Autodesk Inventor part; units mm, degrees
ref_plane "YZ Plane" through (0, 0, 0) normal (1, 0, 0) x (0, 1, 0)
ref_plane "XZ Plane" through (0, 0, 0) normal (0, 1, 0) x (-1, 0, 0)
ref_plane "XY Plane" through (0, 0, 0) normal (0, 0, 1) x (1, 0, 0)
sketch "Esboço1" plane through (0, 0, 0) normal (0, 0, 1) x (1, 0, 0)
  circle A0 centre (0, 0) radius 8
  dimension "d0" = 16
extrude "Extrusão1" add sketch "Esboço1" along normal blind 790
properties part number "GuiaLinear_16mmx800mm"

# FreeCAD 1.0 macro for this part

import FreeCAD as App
import Part
import Sketcher
from FreeCAD import Vector
Q = App.Units.Quantity

doc = App.newDocument("Part")
body = doc.addObject("PartDesign::Body", "Body")

sketch1 = doc.addObject("Sketcher::SketchObject", "Sketch")
body.addObject(sketch1)
sketch1.AttachmentSupport = (doc.XY_Plane, [""])
sketch1.MapMode = "FlatFace"
sketch1.addGeometry(Part.Circle(Vector(0, 0, 0), Vector(0, 0, 1), 8), False)
sketch1.addConstraint(Sketcher.Constraint("Coincident", 0, 3, -1, 1))
sketch1.addConstraint(Sketcher.Constraint("Diameter", 0, Q("16 mm")))
pad1 = doc.addObject("PartDesign::Pad", "Pad")
body.addObject(pad1)
pad1.Profile = sketch1
pad1.Length = 790

doc.recompute()
